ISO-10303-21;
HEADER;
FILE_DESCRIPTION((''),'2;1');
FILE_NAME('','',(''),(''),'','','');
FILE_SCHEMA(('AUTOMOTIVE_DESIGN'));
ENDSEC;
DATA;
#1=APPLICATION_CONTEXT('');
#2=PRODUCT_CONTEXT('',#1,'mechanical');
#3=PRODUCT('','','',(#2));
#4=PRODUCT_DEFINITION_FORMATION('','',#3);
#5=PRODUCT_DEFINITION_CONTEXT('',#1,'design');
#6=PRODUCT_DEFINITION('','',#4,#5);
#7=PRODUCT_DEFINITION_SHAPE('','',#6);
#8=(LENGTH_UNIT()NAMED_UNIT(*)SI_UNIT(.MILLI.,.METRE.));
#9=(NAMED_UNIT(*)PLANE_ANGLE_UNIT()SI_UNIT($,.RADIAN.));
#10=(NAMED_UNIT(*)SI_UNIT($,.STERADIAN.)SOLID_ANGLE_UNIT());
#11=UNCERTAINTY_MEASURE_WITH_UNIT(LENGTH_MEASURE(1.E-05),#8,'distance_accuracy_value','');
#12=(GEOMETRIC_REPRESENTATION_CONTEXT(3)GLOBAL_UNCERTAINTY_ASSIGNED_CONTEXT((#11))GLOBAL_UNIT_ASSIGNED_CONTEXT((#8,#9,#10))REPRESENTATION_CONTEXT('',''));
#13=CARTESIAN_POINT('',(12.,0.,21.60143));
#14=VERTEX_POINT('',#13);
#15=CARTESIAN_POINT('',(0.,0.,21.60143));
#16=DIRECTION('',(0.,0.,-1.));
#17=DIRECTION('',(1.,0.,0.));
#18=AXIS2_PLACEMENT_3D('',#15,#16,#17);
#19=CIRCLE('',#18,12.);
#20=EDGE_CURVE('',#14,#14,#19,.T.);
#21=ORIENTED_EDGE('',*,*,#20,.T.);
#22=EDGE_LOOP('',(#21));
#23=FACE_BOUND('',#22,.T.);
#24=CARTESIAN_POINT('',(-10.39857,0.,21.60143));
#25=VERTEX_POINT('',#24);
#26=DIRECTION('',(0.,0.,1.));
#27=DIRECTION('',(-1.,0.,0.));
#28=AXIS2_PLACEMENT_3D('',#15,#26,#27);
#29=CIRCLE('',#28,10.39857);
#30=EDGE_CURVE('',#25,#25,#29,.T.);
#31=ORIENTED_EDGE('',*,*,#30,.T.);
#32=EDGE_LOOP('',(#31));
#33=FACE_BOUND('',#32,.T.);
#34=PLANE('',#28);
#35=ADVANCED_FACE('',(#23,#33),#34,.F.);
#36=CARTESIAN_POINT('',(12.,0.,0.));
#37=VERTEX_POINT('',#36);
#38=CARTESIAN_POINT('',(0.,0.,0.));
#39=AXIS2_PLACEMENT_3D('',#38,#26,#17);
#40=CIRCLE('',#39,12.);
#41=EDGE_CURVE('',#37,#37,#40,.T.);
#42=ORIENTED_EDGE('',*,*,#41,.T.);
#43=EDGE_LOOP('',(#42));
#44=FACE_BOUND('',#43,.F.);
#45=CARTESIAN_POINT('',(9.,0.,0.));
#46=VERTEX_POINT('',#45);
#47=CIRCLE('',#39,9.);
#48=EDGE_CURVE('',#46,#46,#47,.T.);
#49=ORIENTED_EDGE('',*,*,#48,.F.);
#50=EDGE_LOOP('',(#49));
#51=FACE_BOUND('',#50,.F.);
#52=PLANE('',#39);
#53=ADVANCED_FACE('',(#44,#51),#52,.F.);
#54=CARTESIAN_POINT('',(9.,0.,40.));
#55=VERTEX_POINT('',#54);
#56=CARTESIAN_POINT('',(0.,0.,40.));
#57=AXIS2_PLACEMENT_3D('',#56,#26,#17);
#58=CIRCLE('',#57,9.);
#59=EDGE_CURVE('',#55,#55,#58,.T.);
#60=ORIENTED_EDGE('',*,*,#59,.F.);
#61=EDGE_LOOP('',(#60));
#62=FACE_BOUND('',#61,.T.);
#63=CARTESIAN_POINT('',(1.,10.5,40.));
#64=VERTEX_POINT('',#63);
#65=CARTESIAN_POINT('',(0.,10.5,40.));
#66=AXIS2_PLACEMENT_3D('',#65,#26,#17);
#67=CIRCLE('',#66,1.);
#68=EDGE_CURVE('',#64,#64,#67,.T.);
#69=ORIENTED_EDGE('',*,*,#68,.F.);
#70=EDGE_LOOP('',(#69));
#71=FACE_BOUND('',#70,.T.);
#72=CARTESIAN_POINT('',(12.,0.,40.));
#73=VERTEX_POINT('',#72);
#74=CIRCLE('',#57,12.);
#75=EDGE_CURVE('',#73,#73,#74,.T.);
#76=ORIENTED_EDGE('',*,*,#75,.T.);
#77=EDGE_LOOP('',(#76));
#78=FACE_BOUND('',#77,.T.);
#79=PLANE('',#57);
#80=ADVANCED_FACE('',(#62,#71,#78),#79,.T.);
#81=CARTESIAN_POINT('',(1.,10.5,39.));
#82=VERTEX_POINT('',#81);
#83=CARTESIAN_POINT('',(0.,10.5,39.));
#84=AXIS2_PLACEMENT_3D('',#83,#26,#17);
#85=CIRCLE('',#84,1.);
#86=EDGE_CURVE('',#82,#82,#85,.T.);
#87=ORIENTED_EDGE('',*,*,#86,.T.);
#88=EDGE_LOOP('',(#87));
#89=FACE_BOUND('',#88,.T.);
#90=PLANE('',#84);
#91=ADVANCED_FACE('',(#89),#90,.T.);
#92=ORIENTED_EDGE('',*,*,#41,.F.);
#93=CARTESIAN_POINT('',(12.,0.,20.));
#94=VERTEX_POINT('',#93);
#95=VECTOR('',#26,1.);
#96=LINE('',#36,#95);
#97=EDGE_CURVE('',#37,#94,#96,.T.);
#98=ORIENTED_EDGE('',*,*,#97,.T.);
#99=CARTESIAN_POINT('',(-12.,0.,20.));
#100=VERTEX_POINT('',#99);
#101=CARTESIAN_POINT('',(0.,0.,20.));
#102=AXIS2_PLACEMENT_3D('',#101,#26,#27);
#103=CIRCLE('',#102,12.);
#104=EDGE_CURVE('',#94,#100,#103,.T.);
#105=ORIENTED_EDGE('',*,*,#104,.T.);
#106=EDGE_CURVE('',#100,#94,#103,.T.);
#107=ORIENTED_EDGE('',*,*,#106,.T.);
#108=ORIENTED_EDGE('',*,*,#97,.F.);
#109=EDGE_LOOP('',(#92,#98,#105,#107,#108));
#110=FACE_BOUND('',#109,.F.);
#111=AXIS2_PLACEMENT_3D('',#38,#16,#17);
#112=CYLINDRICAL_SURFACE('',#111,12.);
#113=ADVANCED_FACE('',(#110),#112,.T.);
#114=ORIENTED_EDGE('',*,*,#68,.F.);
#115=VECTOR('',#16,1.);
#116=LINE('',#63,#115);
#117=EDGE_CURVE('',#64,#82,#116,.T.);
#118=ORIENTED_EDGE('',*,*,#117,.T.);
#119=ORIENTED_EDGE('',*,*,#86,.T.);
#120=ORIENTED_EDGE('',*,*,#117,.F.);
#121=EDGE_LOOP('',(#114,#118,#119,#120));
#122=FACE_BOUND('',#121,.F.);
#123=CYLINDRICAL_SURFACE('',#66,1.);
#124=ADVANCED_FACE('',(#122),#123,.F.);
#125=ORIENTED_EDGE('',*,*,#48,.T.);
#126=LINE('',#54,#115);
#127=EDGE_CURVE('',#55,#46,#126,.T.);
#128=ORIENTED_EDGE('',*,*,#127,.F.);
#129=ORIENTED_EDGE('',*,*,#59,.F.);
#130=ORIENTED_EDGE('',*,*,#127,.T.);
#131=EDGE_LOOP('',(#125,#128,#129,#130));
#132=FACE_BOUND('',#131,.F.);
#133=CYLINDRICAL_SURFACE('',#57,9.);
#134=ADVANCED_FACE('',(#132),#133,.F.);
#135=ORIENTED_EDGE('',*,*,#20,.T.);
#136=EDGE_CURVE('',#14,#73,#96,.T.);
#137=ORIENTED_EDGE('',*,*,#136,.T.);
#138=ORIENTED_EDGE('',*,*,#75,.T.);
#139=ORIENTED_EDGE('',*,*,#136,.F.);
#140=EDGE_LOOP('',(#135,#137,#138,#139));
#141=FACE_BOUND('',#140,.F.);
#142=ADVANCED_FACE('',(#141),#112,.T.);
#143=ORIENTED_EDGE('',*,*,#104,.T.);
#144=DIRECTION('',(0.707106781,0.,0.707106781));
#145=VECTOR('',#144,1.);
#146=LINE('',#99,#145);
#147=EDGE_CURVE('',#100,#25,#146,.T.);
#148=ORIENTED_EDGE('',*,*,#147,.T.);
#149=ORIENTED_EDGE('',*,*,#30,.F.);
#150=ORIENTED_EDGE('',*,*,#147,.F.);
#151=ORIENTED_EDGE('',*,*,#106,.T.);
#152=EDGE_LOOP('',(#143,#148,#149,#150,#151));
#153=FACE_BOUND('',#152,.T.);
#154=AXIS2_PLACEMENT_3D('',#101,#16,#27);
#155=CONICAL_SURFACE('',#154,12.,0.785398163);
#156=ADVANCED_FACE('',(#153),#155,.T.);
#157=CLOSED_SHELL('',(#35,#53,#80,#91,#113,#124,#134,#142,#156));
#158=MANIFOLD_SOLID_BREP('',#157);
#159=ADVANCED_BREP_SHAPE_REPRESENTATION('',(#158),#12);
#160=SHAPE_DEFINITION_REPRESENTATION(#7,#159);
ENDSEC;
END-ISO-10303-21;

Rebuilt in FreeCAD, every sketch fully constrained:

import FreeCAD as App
import Part
import Sketcher

V = App.Vector


def add_polygon(sketch, points):
    """Adds a closed chain of lines whose ends are joined by coincident constraints."""
    first, n = sketch.GeometryCount, len(points)
    for a, b in zip(points, points[1:] + points[:1]):
        sketch.addGeometry(Part.LineSegment(App.Vector(*a, 0), App.Vector(*b, 0)), False)
    for i in range(n):
        sketch.addConstraint(Sketcher.Constraint("Coincident", first + i, 2, first + (i + 1) % n, 1))

doc = App.newDocument("Part")
body = doc.addObject("PartDesign::Body", "Body")

sketch1 = body.newObject("Sketcher::SketchObject", "Sketch")
sketch1.AttachmentSupport = (doc.getObject("XY_Plane"), [""])
sketch1.MapMode = "FlatFace"
sketch1.addGeometry(Part.Circle(V(0, 0, 0), V(0, 0, 1), 12), False)
sketch1.addConstraint([
    Sketcher.Constraint("Coincident", 0, 3, -1, 1),
    Sketcher.Constraint("Diameter", 0, 24.0),
])
pad1 = body.newObject("PartDesign::Pad", "Pad")
pad1.Profile = sketch1
pad1.Length = 40

sketch2 = body.newObject("Sketcher::SketchObject", "Sketch001")
sketch2.AttachmentSupport = (doc.getObject("XY_Plane"), [""])
sketch2.MapMode = "FlatFace"
sketch2.AttachmentOffset = App.Placement(V(0, 0, 40), App.Rotation())
sketch2.addGeometry(Part.Circle(V(0, 0, 0), V(0, 0, 1), 9), False)
sketch2.addConstraint([
    Sketcher.Constraint("Coincident", 0, 3, -1, 1),
    Sketcher.Constraint("Diameter", 0, 18.0),
])
pocket1 = body.newObject("PartDesign::Pocket", "Pocket")
pocket1.Profile = sketch2
pocket1.Type = "ThroughAll"

sketch3 = body.newObject("Sketcher::SketchObject", "Sketch002")
sketch3.AttachmentSupport = (doc.getObject("XZ_Plane"), [""])
sketch3.MapMode = "FlatFace"
add_polygon(sketch3, [(-12, 21.6), (-12, 20), (-10.4, 21.6)])
sketch3.addConstraint([
    Sketcher.Constraint("Vertical", 0),
    Sketcher.Constraint("Horizontal", 2),
    Sketcher.Constraint("Equal", 2, 0),
    Sketcher.Constraint("DistanceX", 0, 2, -1, 1, 12.0),
    Sketcher.Constraint("DistanceY", -1, 1, 0, 2, 20.0),
    Sketcher.Constraint("DistanceX", 2, 2, 2, 1, 1.60143),
])
groove = body.newObject("PartDesign::Groove", "Groove")
groove.Profile = sketch3
groove.ReferenceAxis = (sketch3, ["V_Axis"])
groove.Angle = 360

sketch4 = body.newObject("Sketcher::SketchObject", "Sketch003")
sketch4.AttachmentSupport = (doc.getObject("XY_Plane"), [""])
sketch4.MapMode = "FlatFace"
sketch4.AttachmentOffset = App.Placement(V(0, 0, 40), App.Rotation())
sketch4.addGeometry(Part.Circle(V(0, 10.5, 0), V(0, 0, 1), 1), False)
sketch4.addConstraint([
    Sketcher.Constraint("PointOnObject", 0, 3, -2),
    Sketcher.Constraint("Diameter", 0, 2.0),
    Sketcher.Constraint("DistanceY", -1, 1, 0, 3, 10.5),
])
pocket2 = body.newObject("PartDesign::Pocket", "Pocket001")
pocket2.Profile = sketch4
pocket2.Length = 1

doc.recompute()
